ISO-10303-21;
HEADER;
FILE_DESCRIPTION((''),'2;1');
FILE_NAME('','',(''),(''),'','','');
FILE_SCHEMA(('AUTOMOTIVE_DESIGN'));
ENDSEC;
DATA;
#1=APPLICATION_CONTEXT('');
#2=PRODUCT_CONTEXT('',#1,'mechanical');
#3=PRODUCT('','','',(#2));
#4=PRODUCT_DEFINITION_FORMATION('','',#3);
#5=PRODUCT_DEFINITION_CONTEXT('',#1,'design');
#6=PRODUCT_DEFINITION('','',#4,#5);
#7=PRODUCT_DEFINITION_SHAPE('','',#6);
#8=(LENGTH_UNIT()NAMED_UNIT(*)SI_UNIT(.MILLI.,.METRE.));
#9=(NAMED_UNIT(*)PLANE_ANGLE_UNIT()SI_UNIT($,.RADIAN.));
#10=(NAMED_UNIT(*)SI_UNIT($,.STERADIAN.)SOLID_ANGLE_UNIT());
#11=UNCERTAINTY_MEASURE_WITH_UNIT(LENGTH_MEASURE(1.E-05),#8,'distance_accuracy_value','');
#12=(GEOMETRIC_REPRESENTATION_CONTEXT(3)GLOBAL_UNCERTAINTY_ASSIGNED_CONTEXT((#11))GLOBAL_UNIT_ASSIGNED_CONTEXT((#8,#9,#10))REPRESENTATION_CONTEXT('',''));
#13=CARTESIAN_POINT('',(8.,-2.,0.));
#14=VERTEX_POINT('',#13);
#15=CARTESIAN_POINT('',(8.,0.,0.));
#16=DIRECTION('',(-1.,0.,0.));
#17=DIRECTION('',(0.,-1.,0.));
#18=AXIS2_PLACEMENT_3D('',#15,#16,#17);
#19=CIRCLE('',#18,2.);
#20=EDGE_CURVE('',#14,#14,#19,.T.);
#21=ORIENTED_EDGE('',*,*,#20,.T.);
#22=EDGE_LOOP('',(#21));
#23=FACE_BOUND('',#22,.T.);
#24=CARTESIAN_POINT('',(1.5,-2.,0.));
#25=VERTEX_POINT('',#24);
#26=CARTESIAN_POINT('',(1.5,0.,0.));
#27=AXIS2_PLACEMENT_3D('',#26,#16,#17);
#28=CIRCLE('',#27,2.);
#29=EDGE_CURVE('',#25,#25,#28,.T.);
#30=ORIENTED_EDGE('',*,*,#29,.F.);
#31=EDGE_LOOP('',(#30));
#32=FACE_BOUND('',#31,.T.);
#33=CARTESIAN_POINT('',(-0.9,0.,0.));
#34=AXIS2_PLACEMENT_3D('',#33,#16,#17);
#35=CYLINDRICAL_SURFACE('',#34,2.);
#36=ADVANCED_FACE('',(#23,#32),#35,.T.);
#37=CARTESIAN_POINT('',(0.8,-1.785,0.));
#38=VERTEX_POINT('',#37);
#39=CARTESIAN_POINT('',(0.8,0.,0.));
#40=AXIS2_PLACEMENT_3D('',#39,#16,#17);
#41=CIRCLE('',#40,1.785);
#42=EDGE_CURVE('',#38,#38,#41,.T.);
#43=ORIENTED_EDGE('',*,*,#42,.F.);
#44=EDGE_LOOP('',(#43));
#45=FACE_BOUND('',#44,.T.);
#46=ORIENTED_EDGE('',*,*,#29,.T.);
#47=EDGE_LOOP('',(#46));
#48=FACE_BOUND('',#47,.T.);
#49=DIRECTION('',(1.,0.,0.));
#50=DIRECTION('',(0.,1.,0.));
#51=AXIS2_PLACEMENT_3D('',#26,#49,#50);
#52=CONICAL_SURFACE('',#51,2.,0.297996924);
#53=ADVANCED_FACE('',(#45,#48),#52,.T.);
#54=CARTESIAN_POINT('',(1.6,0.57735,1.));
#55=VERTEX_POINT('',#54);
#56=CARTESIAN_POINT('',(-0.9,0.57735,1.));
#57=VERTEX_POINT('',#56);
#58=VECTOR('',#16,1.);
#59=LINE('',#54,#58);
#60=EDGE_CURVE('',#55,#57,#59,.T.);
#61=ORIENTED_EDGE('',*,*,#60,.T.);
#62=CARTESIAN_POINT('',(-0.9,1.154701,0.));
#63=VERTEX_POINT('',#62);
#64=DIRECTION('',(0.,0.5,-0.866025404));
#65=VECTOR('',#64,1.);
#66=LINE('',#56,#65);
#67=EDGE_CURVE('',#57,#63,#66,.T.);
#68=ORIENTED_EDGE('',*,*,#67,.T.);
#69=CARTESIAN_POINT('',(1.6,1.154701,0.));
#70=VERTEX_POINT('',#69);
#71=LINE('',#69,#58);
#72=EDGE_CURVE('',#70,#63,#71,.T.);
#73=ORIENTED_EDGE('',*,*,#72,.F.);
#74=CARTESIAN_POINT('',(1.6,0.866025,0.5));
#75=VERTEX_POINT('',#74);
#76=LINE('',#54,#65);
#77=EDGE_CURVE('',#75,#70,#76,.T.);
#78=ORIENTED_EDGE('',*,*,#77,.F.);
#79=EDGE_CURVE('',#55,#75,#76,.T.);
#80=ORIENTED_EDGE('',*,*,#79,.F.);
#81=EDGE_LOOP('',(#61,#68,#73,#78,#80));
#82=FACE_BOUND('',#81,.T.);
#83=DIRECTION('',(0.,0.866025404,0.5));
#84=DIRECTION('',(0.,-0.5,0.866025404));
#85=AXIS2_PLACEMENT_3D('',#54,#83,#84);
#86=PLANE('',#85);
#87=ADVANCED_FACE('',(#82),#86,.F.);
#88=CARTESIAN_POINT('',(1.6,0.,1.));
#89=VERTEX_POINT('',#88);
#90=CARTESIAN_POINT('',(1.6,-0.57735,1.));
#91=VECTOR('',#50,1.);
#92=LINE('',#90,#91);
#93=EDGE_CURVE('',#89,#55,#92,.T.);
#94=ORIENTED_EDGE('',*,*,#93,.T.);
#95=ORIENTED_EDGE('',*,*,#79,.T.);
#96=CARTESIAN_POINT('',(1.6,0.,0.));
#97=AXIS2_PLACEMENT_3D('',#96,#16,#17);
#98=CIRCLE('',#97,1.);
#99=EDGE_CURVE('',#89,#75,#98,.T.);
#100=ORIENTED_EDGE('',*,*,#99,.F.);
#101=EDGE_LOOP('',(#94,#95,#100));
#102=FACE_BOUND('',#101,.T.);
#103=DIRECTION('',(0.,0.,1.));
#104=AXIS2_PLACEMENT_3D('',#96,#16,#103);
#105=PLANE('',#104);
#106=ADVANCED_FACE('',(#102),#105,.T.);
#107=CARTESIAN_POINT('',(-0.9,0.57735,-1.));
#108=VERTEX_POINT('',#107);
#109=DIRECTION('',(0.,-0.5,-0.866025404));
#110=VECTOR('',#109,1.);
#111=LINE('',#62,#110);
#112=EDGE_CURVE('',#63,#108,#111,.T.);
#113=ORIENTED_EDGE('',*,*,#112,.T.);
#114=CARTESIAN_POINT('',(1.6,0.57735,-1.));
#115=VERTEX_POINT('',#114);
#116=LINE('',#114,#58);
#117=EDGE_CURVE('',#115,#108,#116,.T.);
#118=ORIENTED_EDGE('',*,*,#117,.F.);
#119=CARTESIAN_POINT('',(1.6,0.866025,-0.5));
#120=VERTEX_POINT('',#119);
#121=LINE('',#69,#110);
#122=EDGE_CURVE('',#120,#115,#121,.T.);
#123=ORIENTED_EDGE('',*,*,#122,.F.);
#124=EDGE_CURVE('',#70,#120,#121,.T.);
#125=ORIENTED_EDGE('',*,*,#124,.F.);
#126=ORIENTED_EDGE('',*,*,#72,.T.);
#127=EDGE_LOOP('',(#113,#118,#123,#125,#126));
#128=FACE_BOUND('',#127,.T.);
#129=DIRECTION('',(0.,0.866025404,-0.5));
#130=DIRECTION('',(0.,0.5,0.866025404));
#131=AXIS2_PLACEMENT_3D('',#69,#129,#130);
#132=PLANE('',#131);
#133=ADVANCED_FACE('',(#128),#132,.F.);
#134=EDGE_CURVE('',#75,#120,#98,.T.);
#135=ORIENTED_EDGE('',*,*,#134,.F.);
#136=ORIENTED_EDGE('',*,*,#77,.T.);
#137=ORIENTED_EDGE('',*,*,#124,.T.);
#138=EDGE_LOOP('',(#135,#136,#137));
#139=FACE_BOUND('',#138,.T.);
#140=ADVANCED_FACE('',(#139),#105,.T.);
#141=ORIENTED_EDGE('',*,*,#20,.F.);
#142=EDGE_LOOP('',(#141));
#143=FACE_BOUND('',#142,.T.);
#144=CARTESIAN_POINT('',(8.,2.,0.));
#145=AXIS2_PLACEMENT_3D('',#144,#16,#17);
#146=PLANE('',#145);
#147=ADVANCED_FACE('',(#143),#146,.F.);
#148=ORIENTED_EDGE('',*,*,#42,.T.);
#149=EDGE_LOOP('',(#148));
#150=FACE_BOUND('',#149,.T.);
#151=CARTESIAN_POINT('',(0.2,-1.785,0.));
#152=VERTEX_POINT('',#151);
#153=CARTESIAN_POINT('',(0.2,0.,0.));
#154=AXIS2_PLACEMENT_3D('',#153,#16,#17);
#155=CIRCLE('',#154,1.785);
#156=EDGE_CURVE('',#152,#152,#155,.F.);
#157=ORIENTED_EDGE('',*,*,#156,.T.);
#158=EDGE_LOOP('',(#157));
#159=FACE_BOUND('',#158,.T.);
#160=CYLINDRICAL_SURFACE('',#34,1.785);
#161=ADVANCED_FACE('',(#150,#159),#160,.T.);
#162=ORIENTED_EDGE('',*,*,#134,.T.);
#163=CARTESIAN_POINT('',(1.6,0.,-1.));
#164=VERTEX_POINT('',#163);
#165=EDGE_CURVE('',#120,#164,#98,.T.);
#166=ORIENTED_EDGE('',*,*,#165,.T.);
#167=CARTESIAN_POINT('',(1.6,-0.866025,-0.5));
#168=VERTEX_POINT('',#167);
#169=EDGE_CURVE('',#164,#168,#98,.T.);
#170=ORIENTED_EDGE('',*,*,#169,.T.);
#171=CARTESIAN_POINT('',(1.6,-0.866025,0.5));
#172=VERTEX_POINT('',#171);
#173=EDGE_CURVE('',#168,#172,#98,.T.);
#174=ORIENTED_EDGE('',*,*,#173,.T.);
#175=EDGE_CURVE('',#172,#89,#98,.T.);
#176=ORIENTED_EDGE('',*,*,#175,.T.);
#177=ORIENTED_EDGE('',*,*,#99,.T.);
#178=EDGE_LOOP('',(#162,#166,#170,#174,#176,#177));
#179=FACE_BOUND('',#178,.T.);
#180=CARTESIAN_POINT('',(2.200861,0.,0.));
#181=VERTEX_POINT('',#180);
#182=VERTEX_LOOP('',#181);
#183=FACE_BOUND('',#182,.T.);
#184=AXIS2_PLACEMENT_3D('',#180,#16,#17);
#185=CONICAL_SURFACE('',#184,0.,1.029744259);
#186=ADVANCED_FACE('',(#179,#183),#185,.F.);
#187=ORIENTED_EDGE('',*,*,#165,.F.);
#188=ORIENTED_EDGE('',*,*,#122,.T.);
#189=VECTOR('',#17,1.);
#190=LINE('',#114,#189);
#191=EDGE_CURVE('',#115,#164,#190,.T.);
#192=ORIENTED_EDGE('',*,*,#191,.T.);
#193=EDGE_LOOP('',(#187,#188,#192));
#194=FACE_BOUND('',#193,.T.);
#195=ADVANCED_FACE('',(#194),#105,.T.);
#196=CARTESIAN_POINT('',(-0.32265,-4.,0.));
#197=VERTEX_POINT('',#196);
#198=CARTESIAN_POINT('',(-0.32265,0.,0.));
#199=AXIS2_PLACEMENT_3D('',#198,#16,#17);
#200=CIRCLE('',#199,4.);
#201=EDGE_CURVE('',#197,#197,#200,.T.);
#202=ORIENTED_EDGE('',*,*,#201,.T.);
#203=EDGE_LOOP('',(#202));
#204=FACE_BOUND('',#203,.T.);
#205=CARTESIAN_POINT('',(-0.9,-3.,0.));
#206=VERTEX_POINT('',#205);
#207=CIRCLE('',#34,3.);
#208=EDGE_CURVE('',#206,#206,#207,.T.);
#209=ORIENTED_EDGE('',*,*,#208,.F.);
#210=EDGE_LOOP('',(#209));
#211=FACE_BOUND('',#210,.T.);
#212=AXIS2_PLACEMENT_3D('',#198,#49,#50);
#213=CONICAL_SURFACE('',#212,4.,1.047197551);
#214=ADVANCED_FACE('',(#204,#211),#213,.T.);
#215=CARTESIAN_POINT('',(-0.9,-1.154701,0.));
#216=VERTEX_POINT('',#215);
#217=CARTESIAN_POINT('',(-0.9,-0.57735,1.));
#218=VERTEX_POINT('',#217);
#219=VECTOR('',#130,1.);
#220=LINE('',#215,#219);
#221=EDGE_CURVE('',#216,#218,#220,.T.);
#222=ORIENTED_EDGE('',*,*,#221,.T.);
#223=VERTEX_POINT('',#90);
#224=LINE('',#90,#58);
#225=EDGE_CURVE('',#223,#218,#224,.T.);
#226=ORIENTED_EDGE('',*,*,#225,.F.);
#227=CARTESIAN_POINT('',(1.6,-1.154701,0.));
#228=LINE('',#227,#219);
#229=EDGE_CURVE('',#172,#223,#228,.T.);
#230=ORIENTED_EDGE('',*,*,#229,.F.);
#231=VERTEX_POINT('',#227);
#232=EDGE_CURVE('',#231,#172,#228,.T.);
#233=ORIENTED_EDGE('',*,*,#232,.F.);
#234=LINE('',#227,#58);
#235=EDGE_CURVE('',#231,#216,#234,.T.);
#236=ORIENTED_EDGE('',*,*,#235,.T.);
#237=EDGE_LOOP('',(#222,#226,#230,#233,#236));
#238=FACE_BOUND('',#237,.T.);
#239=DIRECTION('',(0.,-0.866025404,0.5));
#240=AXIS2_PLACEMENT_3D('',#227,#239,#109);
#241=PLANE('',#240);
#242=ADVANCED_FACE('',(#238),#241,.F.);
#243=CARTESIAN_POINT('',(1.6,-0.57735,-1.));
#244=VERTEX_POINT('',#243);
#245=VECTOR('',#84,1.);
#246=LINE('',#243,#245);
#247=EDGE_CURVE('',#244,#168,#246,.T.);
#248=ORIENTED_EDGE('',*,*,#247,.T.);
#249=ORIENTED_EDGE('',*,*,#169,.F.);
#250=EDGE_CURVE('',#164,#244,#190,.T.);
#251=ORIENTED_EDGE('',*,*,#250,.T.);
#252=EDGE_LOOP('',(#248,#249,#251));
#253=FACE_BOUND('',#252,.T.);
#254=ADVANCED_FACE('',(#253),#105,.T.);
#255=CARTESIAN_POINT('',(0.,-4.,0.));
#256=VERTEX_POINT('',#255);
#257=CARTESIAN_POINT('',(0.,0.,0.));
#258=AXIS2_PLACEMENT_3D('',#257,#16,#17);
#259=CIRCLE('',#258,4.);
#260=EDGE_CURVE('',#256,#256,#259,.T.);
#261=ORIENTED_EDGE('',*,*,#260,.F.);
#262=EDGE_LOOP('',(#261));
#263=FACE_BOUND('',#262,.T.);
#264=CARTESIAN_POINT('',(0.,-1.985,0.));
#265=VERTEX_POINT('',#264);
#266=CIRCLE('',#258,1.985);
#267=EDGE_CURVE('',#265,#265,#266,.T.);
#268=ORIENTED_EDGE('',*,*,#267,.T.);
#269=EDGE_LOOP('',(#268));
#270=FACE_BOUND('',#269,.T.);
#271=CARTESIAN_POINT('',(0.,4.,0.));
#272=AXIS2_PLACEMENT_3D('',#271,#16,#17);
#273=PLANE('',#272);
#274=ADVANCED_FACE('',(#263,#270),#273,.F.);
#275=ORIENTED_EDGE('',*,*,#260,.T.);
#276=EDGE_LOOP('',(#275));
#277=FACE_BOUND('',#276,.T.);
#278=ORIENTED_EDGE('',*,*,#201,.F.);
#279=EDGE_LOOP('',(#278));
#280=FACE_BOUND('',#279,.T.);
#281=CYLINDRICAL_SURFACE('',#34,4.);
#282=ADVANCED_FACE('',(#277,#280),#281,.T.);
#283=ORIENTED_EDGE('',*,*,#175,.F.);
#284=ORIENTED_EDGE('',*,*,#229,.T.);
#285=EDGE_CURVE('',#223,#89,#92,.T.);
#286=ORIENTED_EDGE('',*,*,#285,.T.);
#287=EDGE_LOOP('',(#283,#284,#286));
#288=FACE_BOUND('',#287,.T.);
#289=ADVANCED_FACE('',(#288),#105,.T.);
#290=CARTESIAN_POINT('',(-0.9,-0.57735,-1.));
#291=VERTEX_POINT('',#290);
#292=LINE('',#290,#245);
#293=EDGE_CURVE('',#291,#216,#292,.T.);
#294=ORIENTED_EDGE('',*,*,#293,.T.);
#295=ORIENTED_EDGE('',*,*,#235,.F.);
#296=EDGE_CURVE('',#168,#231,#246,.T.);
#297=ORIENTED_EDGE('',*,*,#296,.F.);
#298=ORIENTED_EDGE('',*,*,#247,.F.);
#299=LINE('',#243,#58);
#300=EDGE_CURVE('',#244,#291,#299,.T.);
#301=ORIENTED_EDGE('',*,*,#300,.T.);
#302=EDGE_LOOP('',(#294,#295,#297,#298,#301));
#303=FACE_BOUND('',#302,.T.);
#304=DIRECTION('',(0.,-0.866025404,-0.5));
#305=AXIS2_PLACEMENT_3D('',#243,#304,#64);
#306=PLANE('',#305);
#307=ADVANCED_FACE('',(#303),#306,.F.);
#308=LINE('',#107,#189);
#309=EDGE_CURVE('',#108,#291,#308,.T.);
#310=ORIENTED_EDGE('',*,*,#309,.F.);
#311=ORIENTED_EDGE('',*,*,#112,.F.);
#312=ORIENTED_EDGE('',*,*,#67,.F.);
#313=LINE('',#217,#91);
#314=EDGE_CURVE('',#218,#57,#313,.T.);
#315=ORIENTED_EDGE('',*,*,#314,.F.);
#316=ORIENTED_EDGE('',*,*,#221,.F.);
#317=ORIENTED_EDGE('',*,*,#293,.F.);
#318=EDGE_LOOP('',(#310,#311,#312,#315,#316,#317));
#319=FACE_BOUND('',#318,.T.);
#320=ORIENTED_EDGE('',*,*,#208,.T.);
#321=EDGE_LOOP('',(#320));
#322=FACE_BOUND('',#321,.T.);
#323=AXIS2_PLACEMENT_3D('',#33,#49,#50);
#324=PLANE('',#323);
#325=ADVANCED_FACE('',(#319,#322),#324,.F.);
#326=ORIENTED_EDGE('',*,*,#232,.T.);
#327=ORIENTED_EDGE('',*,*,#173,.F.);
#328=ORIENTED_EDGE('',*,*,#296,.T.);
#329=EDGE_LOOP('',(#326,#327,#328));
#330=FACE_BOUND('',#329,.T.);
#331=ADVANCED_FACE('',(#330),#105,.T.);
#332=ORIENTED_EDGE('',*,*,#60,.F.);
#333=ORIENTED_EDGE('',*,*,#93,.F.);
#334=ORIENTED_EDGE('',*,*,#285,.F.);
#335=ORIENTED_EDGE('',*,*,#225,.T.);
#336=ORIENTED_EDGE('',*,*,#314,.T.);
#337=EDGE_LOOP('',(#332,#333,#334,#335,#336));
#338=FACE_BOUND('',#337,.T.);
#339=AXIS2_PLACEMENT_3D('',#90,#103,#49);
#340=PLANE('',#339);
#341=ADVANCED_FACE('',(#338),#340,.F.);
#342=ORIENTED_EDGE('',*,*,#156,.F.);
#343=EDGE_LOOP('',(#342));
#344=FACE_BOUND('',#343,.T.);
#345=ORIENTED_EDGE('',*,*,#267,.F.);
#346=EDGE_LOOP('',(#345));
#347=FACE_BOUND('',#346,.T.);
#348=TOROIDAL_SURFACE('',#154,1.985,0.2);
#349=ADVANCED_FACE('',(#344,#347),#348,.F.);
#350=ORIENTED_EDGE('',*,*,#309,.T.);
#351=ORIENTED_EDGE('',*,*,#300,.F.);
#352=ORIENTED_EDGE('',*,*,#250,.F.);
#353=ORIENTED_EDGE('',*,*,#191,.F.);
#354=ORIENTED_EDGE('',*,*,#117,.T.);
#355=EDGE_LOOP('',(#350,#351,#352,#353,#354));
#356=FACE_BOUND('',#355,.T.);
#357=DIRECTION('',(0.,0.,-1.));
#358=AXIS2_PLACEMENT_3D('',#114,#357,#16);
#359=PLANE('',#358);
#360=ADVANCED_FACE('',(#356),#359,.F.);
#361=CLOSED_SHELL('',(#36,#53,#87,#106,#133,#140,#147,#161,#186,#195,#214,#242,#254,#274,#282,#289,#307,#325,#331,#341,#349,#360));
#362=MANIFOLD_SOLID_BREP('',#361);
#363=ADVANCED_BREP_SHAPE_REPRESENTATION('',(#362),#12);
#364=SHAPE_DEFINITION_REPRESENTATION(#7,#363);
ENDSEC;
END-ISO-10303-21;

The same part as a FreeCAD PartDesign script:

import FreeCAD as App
import Part
import Sketcher
Q = App.Units.Quantity


def edges_at(feature, points):
    """Names of the edges that pass closest to the given points."""
    edges = feature.Shape.Edges
    near = lambda p: min(range(len(edges)), key=lambda i: edges[i].distToShape(Part.Vertex(*p))[0])
    return sorted({f"Edge{near(p) + 1}" for p in points})

doc = App.newDocument("Part")
body = doc.addObject("PartDesign::Body", "Body")

sketch1 = body.newObject("Sketcher::SketchObject", "Sketch")
sketch1.AttachmentSupport = (doc.getObject("XY_Plane"), [""])
sketch1.MapMode = "FlatFace"
sketch1.addGeometry([
    Part.LineSegment(App.Vector(-0.9, 3, 0), App.Vector(-0.9, 0, 0)),
    Part.LineSegment(App.Vector(-0.9, 0, 0), App.Vector(8, 0, 0)),
    Part.LineSegment(App.Vector(8, 0, 0), App.Vector(8, 2, 0)),
    Part.LineSegment(App.Vector(8, 2, 0), App.Vector(1.5, 2, 0)),
    Part.LineSegment(App.Vector(1.5, 2, 0), App.Vector(0.8, 1.78, 0)),
    Part.LineSegment(App.Vector(0.8, 1.78, 0), App.Vector(0, 1.78, 0)),
    Part.LineSegment(App.Vector(0, 1.78, 0), App.Vector(0, 4, 0)),
    Part.LineSegment(App.Vector(0, 4, 0), App.Vector(-0.32, 4, 0)),
    Part.LineSegment(App.Vector(-0.32, 4, 0), App.Vector(-0.9, 3, 0)),
], False)
sketch1.addConstraint([
    Sketcher.Constraint("Coincident", 0, 2, 1, 1),
    Sketcher.Constraint("Coincident", 1, 2, 2, 1),
    Sketcher.Constraint("Coincident", 2, 2, 3, 1),
    Sketcher.Constraint("Coincident", 3, 2, 4, 1),
    Sketcher.Constraint("Coincident", 4, 2, 5, 1),
    Sketcher.Constraint("Coincident", 5, 2, 6, 1),
    Sketcher.Constraint("Coincident", 6, 2, 7, 1),
    Sketcher.Constraint("Coincident", 7, 2, 8, 1),
    Sketcher.Constraint("Coincident", 8, 2, 0, 1),
    Sketcher.Constraint("Vertical", 0),
    Sketcher.Constraint("Horizontal", 1),
    Sketcher.Constraint("Vertical", 2),
    Sketcher.Constraint("Horizontal", 3),
    Sketcher.Constraint("Horizontal", 5),
    Sketcher.Constraint("Vertical", 6),
    Sketcher.Constraint("Horizontal", 7),
    Sketcher.Constraint("PointOnObject", 0, 2, -1),
    Sketcher.Constraint("PointOnObject", 5, 2, -2),
    Sketcher.Constraint("DistanceY", 0, 2, 0, 1, 3.0),
    Sketcher.Constraint("DistanceY", 2, 1, 2, 2, 2.0),
    Sketcher.Constraint("Angle", 8, Q("-120 deg")),
    Sketcher.Constraint("DistanceX", 1, 1, 1, 2, 8.9),
    Sketcher.Constraint("DistanceX", 3, 2, 3, 1, 6.5),
    Sketcher.Constraint("DistanceX", 5, 2, 5, 1, 0.8),
    Sketcher.Constraint("DistanceX", -1, 1, 1, 2, 8.0),
    Sketcher.Constraint("DistanceY", -1, 1, 6, 2, 4.0),
    Sketcher.Constraint("DistanceY", 6, 1, 6, 2, 2.215),
])
revolution = body.newObject("PartDesign::Revolution", "Revolution")
revolution.Profile = sketch1
revolution.ReferenceAxis = (sketch1, ["H_Axis"])
revolution.Angle = 360
doc.recompute()

fillet = body.newObject("PartDesign::Fillet", "Fillet")
fillet.Base = (revolution, edges_at(revolution, [(0, 1.785, 0)]))
fillet.Radius = 0.2

sketch2 = body.newObject("Sketcher::SketchObject", "Sketch001")
sketch2.AttachmentSupport = (doc.getObject("YZ_Plane"), [""])
sketch2.MapMode = "FlatFace"
sketch2.AttachmentOffset = App.Placement(App.Vector(0, 0, -0.9), App.Rotation())
sketch2.addGeometry([
    Part.LineSegment(App.Vector(1.2, 0, 0), App.Vector(0.6, -1, 0)),
    Part.LineSegment(App.Vector(0.6, -1, 0), App.Vector(-0.6, -1, 0)),
    Part.LineSegment(App.Vector(-0.6, -1, 0), App.Vector(-1.2, 0, 0)),
    Part.LineSegment(App.Vector(-1.2, 0, 0), App.Vector(-0.6, 1, 0)),
    Part.LineSegment(App.Vector(-0.6, 1, 0), App.Vector(0.6, 1, 0)),
    Part.LineSegment(App.Vector(0.6, 1, 0), App.Vector(1.2, 0, 0)),
], False)
sketch2.addConstraint([
    Sketcher.Constraint("Coincident", 0, 2, 1, 1),
    Sketcher.Constraint("Coincident", 1, 2, 2, 1),
    Sketcher.Constraint("Coincident", 2, 2, 3, 1),
    Sketcher.Constraint("Coincident", 3, 2, 4, 1),
    Sketcher.Constraint("Coincident", 4, 2, 5, 1),
    Sketcher.Constraint("Coincident", 5, 2, 0, 1),
    Sketcher.Constraint("Horizontal", 1),
    Sketcher.Constraint("Horizontal", 4),
    Sketcher.Constraint("Symmetric", 0, 2, 3, 2, -1, 1),
    Sketcher.Constraint("Symmetric", 2, 2, 5, 2, -1, 1),
    Sketcher.Constraint("PointOnObject", 2, 2, -1),
    Sketcher.Constraint("Parallel", 2, 5),
    Sketcher.Constraint("Vertical", 1, 2, 3, 2),
    Sketcher.Constraint("Angle", 0, Q("-120 deg")),
    Sketcher.Constraint("DistanceY", 0, 2, -1, 1, 1.0),
    Sketcher.Constraint("DistanceX", 1, 2, 1, 1, 1.154701),
])
pocket1 = body.newObject("PartDesign::Pocket", "Pocket")
pocket1.Profile = sketch2
pocket1.Length = 2.5
pocket1.Reversed = True

sketch3 = body.newObject("Sketcher::SketchObject", "Sketch002")
sketch3.AttachmentSupport = (doc.getObject("XY_Plane"), [""])
sketch3.MapMode = "FlatFace"
sketch3.addGeometry([
    Part.LineSegment(App.Vector(1.6, 1, 0), App.Vector(1.6, 0, 0)),
    Part.LineSegment(App.Vector(1.6, 0, 0), App.Vector(2.2, 0, 0)),
    Part.LineSegment(App.Vector(2.2, 0, 0), App.Vector(1.6, 1, 0)),
], False)
sketch3.addConstraint([
    Sketcher.Constraint("Coincident", 0, 2, 1, 1),
    Sketcher.Constraint("Coincident", 1, 2, 2, 1),
    Sketcher.Constraint("Coincident", 2, 2, 0, 1),
    Sketcher.Constraint("Vertical", 0),
    Sketcher.Constraint("Horizontal", 1),
    Sketcher.Constraint("PointOnObject", 0, 2, -1),
    Sketcher.Constraint("DistanceY", 0, 2, 0, 1, 1.0),
    Sketcher.Constraint("Angle", 2, Q("121 deg")),
    Sketcher.Constraint("DistanceX", -1, 1, 0, 2, 1.6),
])
groove = body.newObject("PartDesign::Groove", "Groove")
groove.Profile = sketch3
groove.ReferenceAxis = (sketch3, ["H_Axis"])
groove.Angle = 360

doc.recompute()
